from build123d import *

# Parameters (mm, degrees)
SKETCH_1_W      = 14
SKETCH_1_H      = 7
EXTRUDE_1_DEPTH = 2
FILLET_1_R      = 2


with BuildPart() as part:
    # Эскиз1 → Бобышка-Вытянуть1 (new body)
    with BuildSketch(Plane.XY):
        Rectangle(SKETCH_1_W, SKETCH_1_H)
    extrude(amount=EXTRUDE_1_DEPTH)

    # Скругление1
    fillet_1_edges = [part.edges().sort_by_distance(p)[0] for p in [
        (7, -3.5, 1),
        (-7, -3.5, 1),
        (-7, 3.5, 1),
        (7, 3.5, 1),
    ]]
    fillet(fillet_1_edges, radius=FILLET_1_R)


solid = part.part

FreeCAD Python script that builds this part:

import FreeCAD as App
import Part
import Sketcher
from FreeCAD import Vector


def edges_at(feature, points):
    """Names of the edges that pass closest to the given points."""
    edges = feature.Shape.Edges
    near = lambda p: min(range(len(edges)), key=lambda i: edges[i].distToShape(Part.Vertex(*p))[0])
    return sorted({f"Edge{near(p) + 1}" for p in points})


def add_polygon(sketch, points):
    """Adds a closed chain of lines whose ends are joined by coincident constraints."""
    first, n = sketch.GeometryCount, len(points)
    for a, b in zip(points, points[1:] + points[:1]):
        sketch.addGeometry(Part.LineSegment(App.Vector(*a, 0), App.Vector(*b, 0)), False)
    for i in range(n):
        sketch.addConstraint(Sketcher.Constraint("Coincident", first + i, 2, first + (i + 1) % n, 1))

doc = App.newDocument("Part")
body = doc.addObject("PartDesign::Body", "Body")

# Sketch on XY plane
sketch1 = body.newObject("Sketcher::SketchObject", "Sketch")
sketch1.AttachmentSupport = (doc.getObject("XY_Plane"), [""])
sketch1.MapMode = "FlatFace"
add_polygon(sketch1, [(-7, 4), (-7, -4), (7, -4), (7, 4)])  # lines 0-3
sketch1.addConstraint(Sketcher.Constraint("Vertical", 0))
sketch1.addConstraint(Sketcher.Constraint("Horizontal", 1))
sketch1.addConstraint(Sketcher.Constraint("Vertical", 2))
sketch1.addConstraint(Sketcher.Constraint("Horizontal", 3))
sketch1.addConstraint(Sketcher.Constraint("Symmetric", 0, 2, 2, 2, -1, 1))
sketch1.addConstraint(Sketcher.Constraint("DistanceX", 1, 1, 1, 2, 14.0))
sketch1.addConstraint(Sketcher.Constraint("DistanceY", 0, 2, 0, 1, 7.0))
pad1 = body.newObject("PartDesign::Pad", "Pad")
pad1.Profile = sketch1
pad1.Length = 2
doc.recompute()

fillet = body.newObject("PartDesign::Fillet", "Fillet")
fillet.Base = (pad1, edges_at(pad1, [
    (7, -3.5, 1),
    (-7, -3.5, 1),
    (-7, 3.5, 1),
    (7, 3.5, 1),
]))
fillet.Radius = 2

doc.recompute()
